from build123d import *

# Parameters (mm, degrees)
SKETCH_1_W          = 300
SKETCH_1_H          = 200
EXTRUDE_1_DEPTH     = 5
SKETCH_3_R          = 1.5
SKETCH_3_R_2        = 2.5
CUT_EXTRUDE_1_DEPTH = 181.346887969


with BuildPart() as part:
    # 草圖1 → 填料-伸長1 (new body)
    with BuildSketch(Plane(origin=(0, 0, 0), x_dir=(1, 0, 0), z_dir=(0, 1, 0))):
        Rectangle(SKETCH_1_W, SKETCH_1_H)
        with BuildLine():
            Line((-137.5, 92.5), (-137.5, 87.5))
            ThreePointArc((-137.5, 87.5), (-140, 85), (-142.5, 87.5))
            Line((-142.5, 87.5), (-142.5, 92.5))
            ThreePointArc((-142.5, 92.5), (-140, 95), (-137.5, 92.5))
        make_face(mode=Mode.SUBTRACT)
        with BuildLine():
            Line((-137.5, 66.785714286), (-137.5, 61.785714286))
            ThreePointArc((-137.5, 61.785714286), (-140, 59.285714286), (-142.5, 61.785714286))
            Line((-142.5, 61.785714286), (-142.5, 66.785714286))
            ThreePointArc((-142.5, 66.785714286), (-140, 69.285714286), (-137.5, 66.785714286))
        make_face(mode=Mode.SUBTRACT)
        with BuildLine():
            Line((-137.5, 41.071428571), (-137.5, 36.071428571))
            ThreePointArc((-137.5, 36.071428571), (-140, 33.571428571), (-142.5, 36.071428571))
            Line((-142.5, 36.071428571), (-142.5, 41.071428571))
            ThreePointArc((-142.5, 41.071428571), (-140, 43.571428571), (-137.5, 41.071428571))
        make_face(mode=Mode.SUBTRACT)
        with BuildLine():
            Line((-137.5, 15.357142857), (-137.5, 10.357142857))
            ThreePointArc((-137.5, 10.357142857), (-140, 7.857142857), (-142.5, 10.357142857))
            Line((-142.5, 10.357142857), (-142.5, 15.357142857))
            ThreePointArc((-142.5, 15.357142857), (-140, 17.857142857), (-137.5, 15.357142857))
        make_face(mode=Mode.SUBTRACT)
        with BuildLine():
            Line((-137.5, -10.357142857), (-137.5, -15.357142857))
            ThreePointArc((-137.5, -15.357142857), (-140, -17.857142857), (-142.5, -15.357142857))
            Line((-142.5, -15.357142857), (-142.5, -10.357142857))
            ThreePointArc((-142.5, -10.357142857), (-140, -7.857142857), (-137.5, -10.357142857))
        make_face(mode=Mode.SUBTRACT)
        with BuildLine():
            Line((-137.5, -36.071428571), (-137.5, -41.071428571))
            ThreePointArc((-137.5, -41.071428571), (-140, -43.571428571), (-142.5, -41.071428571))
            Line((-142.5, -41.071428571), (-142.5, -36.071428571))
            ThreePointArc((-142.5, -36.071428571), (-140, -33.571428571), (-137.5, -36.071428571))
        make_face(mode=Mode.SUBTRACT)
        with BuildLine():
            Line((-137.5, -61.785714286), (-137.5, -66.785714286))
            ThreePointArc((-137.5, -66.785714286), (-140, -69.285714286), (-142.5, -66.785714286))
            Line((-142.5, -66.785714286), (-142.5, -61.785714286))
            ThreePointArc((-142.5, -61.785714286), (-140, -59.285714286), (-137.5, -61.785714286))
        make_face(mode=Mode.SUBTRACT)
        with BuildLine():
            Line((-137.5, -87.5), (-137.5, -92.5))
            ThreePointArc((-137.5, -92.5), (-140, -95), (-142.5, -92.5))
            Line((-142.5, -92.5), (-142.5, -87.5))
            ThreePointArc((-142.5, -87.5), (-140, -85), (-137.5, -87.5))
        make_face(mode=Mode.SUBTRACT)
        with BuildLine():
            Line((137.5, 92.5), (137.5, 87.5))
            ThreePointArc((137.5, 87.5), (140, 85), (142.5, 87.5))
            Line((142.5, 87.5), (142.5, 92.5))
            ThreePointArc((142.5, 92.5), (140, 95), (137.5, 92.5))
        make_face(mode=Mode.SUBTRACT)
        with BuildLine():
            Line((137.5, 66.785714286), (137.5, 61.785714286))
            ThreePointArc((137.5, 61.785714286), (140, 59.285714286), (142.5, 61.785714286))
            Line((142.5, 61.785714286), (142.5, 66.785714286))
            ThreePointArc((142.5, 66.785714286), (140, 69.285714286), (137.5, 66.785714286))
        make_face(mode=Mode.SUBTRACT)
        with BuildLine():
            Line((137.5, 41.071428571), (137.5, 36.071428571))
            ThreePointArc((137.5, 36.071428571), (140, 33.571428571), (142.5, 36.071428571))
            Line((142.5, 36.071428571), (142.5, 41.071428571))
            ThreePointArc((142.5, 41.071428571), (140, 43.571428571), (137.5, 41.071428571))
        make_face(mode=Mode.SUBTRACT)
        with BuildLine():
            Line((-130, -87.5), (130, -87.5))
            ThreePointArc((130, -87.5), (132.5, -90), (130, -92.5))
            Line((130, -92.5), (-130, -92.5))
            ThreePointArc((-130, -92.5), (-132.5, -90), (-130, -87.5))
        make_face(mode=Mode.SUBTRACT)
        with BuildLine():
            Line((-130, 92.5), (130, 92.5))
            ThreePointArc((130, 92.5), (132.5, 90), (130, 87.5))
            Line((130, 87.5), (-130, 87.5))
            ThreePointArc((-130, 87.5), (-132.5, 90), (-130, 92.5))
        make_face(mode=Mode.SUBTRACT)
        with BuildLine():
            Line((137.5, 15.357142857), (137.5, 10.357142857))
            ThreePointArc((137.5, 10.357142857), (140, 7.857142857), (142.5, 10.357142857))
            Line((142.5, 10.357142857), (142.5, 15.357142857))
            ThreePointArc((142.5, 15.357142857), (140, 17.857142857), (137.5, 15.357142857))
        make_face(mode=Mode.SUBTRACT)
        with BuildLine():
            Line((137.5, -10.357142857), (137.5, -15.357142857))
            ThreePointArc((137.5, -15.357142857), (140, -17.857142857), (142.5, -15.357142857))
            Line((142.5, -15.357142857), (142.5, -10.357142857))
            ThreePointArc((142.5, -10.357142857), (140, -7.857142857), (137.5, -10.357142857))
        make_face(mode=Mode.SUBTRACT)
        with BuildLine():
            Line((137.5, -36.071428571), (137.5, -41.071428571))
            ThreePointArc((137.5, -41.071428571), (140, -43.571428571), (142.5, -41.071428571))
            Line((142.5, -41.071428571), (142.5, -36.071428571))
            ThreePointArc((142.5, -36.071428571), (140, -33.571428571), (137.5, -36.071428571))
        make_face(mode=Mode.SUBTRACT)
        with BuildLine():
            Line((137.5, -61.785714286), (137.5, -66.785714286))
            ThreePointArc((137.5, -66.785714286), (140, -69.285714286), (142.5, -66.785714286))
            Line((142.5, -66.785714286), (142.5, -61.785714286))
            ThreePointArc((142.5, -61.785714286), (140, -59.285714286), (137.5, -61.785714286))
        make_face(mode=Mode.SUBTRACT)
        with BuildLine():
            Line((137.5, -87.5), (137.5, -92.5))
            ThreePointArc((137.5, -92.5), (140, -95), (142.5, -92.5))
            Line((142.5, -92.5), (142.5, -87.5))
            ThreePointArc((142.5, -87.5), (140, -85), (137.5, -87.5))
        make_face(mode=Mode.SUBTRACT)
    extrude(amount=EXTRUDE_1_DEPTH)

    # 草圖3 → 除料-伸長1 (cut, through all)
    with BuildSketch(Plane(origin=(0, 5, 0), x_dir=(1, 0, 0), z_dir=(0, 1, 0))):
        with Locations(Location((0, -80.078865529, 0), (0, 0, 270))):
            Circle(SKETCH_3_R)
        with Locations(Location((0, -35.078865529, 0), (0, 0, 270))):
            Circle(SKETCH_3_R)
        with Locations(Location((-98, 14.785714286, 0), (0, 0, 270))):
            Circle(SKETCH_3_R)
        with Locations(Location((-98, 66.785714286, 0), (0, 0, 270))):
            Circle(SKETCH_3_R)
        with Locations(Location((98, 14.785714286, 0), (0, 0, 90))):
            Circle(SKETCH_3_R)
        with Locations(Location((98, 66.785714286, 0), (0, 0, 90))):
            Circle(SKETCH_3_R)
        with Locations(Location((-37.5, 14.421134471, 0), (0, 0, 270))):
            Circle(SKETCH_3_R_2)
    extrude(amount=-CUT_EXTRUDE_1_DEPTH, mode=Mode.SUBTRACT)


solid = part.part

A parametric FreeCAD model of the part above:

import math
import FreeCAD as App
import Part
import Sketcher
Q = App.Units.Quantity

doc = App.newDocument("Part")
body = doc.addObject("PartDesign::Body", "Body")

sketch1 = body.newObject("Sketcher::SketchObject", "Sketch")
sketch1.AttachmentSupport = (doc.getObject("XZ_Plane"), [""])
sketch1.MapMode = "FlatFace"
sketch1.addGeometry([
    Part.LineSegment(App.Vector(-150, -100, 0), App.Vector(-150, 100, 0)),
    Part.LineSegment(App.Vector(-150, 100, 0), App.Vector(150, 100, 0)),
    Part.LineSegment(App.Vector(150, 100, 0), App.Vector(150, -100, 0)),
    Part.LineSegment(App.Vector(150, -100, 0), App.Vector(-150, -100, 0)),
    Part.ArcOfCircle(Part.Circle(App.Vector(-140, 87.5, 0), App.Vector(0, 0, 1), 2.5), math.radians(180), math.radians(360)),
    Part.LineSegment(App.Vector(-137.5, 87.5, 0), App.Vector(-137.5, 92.5, 0)),
    Part.ArcOfCircle(Part.Circle(App.Vector(-140, 92.5, 0), App.Vector(0, 0, 1), 2.5), math.radians(0), math.radians(180)),
    Part.LineSegment(App.Vector(-142.5, 92.5, 0), App.Vector(-142.5, 87.5, 0)),
    Part.ArcOfCircle(Part.Circle(App.Vector(-140, 61.785714, 0), App.Vector(0, 0, 1), 2.5), math.radians(180), math.radians(360)),
    Part.LineSegment(App.Vector(-137.5, 61.785714, 0), App.Vector(-137.5, 66.785714, 0)),
    Part.ArcOfCircle(Part.Circle(App.Vector(-140, 66.785714, 0), App.Vector(0, 0, 1), 2.5), math.radians(0), math.radians(180)),
    Part.LineSegment(App.Vector(-142.5, 66.785714, 0), App.Vector(-142.5, 61.785714, 0)),
    Part.ArcOfCircle(Part.Circle(App.Vector(-140, 36.071429, 0), App.Vector(0, 0, 1), 2.5), math.radians(180), math.radians(360)),
    Part.LineSegment(App.Vector(-137.5, 36.071429, 0), App.Vector(-137.5, 41.071429, 0)),
    Part.ArcOfCircle(Part.Circle(App.Vector(-140, 41.071429, 0), App.Vector(0, 0, 1), 2.5), math.radians(0), math.radians(180)),
    Part.LineSegment(App.Vector(-142.5, 41.071429, 0), App.Vector(-142.5, 36.071429, 0)),
    Part.ArcOfCircle(Part.Circle(App.Vector(-140, 10.357143, 0), App.Vector(0, 0, 1), 2.5), math.radians(180), math.radians(360)),
    Part.LineSegment(App.Vector(-137.5, 10.357143, 0), App.Vector(-137.5, 15.357143, 0)),
    Part.ArcOfCircle(Part.Circle(App.Vector(-140, 15.357143, 0), App.Vector(0, 0, 1), 2.5), math.radians(0), math.radians(180)),
    Part.LineSegment(App.Vector(-142.5, 15.357143, 0), App.Vector(-142.5, 10.357143, 0)),
    Part.ArcOfCircle(Part.Circle(App.Vector(-130, 90, 0), App.Vector(0, 0, 1), 2.5), math.radians(90), math.radians(270)),
    Part.LineSegment(App.Vector(-130, 87.5, 0), App.Vector(130, 87.5, 0)),
    Part.ArcOfCircle(Part.Circle(App.Vector(130, 90, 0), App.Vector(0, 0, 1), 2.5), math.radians(-90), math.radians(90)),
    Part.LineSegment(App.Vector(130, 92.5, 0), App.Vector(-130, 92.5, 0)),
    Part.LineSegment(App.Vector(137.5, 92.5, 0), App.Vector(137.5, 87.5, 0)),
    Part.ArcOfCircle(Part.Circle(App.Vector(140, 87.5, 0), App.Vector(0, 0, 1), 2.5), math.radians(180), math.radians(360)),
    Part.LineSegment(App.Vector(142.5, 87.5, 0), App.Vector(142.5, 92.5, 0)),
    Part.ArcOfCircle(Part.Circle(App.Vector(140, 92.5, 0), App.Vector(0, 0, 1), 2.5), math.radians(0), math.radians(180)),
    Part.LineSegment(App.Vector(137.5, 66.785714, 0), App.Vector(137.5, 61.785714, 0)),
    Part.ArcOfCircle(Part.Circle(App.Vector(140, 61.785714, 0), App.Vector(0, 0, 1), 2.5), math.radians(180), math.radians(360)),
    Part.LineSegment(App.Vector(142.5, 61.785714, 0), App.Vector(142.5, 66.785714, 0)),
    Part.ArcOfCircle(Part.Circle(App.Vector(140, 66.785714, 0), App.Vector(0, 0, 1), 2.5), math.radians(0), math.radians(180)),
    Part.LineSegment(App.Vector(137.5, 41.071429, 0), App.Vector(137.5, 36.071429, 0)),
    Part.ArcOfCircle(Part.Circle(App.Vector(140, 36.071429, 0), App.Vector(0, 0, 1), 2.5), math.radians(180), math.radians(360)),
    Part.LineSegment(App.Vector(142.5, 36.071429, 0), App.Vector(142.5, 41.071429, 0)),
    Part.ArcOfCircle(Part.Circle(App.Vector(140, 41.071429, 0), App.Vector(0, 0, 1), 2.5), math.radians(0), math.radians(180)),
    Part.LineSegment(App.Vector(137.5, 15.357143, 0), App.Vector(137.5, 10.357143, 0)),
    Part.ArcOfCircle(Part.Circle(App.Vector(140, 10.357143, 0), App.Vector(0, 0, 1), 2.5), math.radians(180), math.radians(360)),
    Part.LineSegment(App.Vector(142.5, 10.357143, 0), App.Vector(142.5, 15.357143, 0)),
    Part.ArcOfCircle(Part.Circle(App.Vector(140, 15.357143, 0), App.Vector(0, 0, 1), 2.5), math.radians(0), math.radians(180)),
    Part.ArcOfCircle(Part.Circle(App.Vector(-140, -15.357143, 0), App.Vector(0, 0, 1), 2.5), math.radians(180), math.radians(360)),
    Part.LineSegment(App.Vector(-137.5, -15.357143, 0), App.Vector(-137.5, -10.357143, 0)),
    Part.ArcOfCircle(Part.Circle(App.Vector(-140, -10.357143, 0), App.Vector(0, 0, 1), 2.5), math.radians(0), math.radians(180)),
    Part.LineSegment(App.Vector(-142.5, -10.357143, 0), App.Vector(-142.5, -15.357143, 0)),
    Part.ArcOfCircle(Part.Circle(App.Vector(-140, -41.071429, 0), App.Vector(0, 0, 1), 2.5), math.radians(180), math.radians(360)),
    Part.LineSegment(App.Vector(-137.5, -41.071429, 0), App.Vector(-137.5, -36.071429, 0)),
    Part.ArcOfCircle(Part.Circle(App.Vector(-140, -36.071429, 0), App.Vector(0, 0, 1), 2.5), math.radians(0), math.radians(180)),
    Part.LineSegment(App.Vector(-142.5, -36.071429, 0), App.Vector(-142.5, -41.071429, 0)),
    Part.ArcOfCircle(Part.Circle(App.Vector(-140, -66.785714, 0), App.Vector(0, 0, 1), 2.5), math.radians(180), math.radians(360)),
    Part.LineSegment(App.Vector(-137.5, -66.785714, 0), App.Vector(-137.5, -61.785714, 0)),
    Part.ArcOfCircle(Part.Circle(App.Vector(-140, -61.785714, 0), App.Vector(0, 0, 1), 2.5), math.radians(0), math.radians(180)),
    Part.LineSegment(App.Vector(-142.5, -61.785714, 0), App.Vector(-142.5, -66.785714, 0)),
    Part.ArcOfCircle(Part.Circle(App.Vector(-140, -92.5, 0), App.Vector(0, 0, 1), 2.5), math.radians(180), math.radians(360)),
    Part.LineSegment(App.Vector(-137.5, -92.5, 0), App.Vector(-137.5, -87.5, 0)),
    Part.ArcOfCircle(Part.Circle(App.Vector(-140, -87.5, 0), App.Vector(0, 0, 1), 2.5), math.radians(0), math.radians(180)),
    Part.LineSegment(App.Vector(-142.5, -87.5, 0), App.Vector(-142.5, -92.5, 0)),
    Part.LineSegment(App.Vector(137.5, -10.357143, 0), App.Vector(137.5, -15.357143, 0)),
    Part.ArcOfCircle(Part.Circle(App.Vector(140, -15.357143, 0), App.Vector(0, 0, 1), 2.5), math.radians(180), math.radians(360)),
    Part.LineSegment(App.Vector(142.5, -15.357143, 0), App.Vector(142.5, -10.357143, 0)),
    Part.ArcOfCircle(Part.Circle(App.Vector(140, -10.357143, 0), App.Vector(0, 0, 1), 2.5), math.radians(0), math.radians(180)),
    Part.LineSegment(App.Vector(137.5, -36.071429, 0), App.Vector(137.5, -41.071429, 0)),
    Part.ArcOfCircle(Part.Circle(App.Vector(140, -41.071429, 0), App.Vector(0, 0, 1), 2.5), math.radians(180), math.radians(360)),
    Part.LineSegment(App.Vector(142.5, -41.071429, 0), App.Vector(142.5, -36.071429, 0)),
    Part.ArcOfCircle(Part.Circle(App.Vector(140, -36.071429, 0), App.Vector(0, 0, 1), 2.5), math.radians(0), math.radians(180)),
    Part.ArcOfCircle(Part.Circle(App.Vector(-130, -90, 0), App.Vector(0, 0, 1), 2.5), math.radians(90), math.radians(270)),
    Part.LineSegment(App.Vector(-130, -92.5, 0), App.Vector(130, -92.5, 0)),
    Part.ArcOfCircle(Part.Circle(App.Vector(130, -90, 0), App.Vector(0, 0, 1), 2.5), math.radians(-90), math.radians(90)),
    Part.LineSegment(App.Vector(130, -87.5, 0), App.Vector(-130, -87.5, 0)),
    Part.LineSegment(App.Vector(137.5, -61.785714, 0), App.Vector(137.5, -66.785714, 0)),
    Part.ArcOfCircle(Part.Circle(App.Vector(140, -66.785714, 0), App.Vector(0, 0, 1), 2.5), math.radians(180), math.radians(360)),
    Part.LineSegment(App.Vector(142.5, -66.785714, 0), App.Vector(142.5, -61.785714, 0)),
    Part.ArcOfCircle(Part.Circle(App.Vector(140, -61.785714, 0), App.Vector(0, 0, 1), 2.5), math.radians(0), math.radians(180)),
    Part.LineSegment(App.Vector(137.5, -87.5, 0), App.Vector(137.5, -92.5, 0)),
    Part.ArcOfCircle(Part.Circle(App.Vector(140, -92.5, 0), App.Vector(0, 0, 1), 2.5), math.radians(180), math.radians(360)),
    Part.LineSegment(App.Vector(142.5, -92.5, 0), App.Vector(142.5, -87.5, 0)),
    Part.ArcOfCircle(Part.Circle(App.Vector(140, -87.5, 0), App.Vector(0, 0, 1), 2.5), math.radians(0), math.radians(180)),
], False)
sketch1.addConstraint([
    Sketcher.Constraint("Coincident", 0, 2, 1, 1),
    Sketcher.Constraint("Coincident", 1, 2, 2, 1),
    Sketcher.Constraint("Coincident", 2, 2, 3, 1),
    Sketcher.Constraint("Coincident", 3, 2, 0, 1),
    Sketcher.Constraint("Tangent", 4, 2, 5, 1),
    Sketcher.Constraint("Tangent", 5, 2, 6, 1),
    Sketcher.Constraint("Tangent", 6, 2, 7, 1),
    Sketcher.Constraint("Tangent", 7, 2, 4, 1),
    Sketcher.Constraint("Tangent", 8, 2, 9, 1),
    Sketcher.Constraint("Tangent", 9, 2, 10, 1),
    Sketcher.Constraint("Tangent", 10, 2, 11, 1),
    Sketcher.Constraint("Tangent", 11, 2, 8, 1),
    Sketcher.Constraint("Tangent", 12, 2, 13, 1),
    Sketcher.Constraint("Tangent", 13, 2, 14, 1),
    Sketcher.Constraint("Tangent", 14, 2, 15, 1),
    Sketcher.Constraint("Tangent", 15, 2, 12, 1),
    Sketcher.Constraint("Tangent", 16, 2, 17, 1),
    Sketcher.Constraint("Tangent", 17, 2, 18, 1),
    Sketcher.Constraint("Tangent", 18, 2, 19, 1),
    Sketcher.Constraint("Tangent", 19, 2, 16, 1),
    Sketcher.Constraint("Tangent", 20, 2, 21, 1),
    Sketcher.Constraint("Tangent", 21, 2, 22, 1),
    Sketcher.Constraint("Tangent", 22, 2, 23, 1),
    Sketcher.Constraint("Tangent", 23, 2, 20, 1),
    Sketcher.Constraint("Tangent", 24, 2, 25, 1),
    Sketcher.Constraint("Tangent", 25, 2, 26, 1),
    Sketcher.Constraint("Tangent", 26, 2, 27, 1),
    Sketcher.Constraint("Tangent", 27, 2, 24, 1),
    Sketcher.Constraint("Tangent", 28, 2, 29, 1),
    Sketcher.Constraint("Tangent", 29, 2, 30, 1),
    Sketcher.Constraint("Tangent", 30, 2, 31, 1),
    Sketcher.Constraint("Tangent", 31, 2, 28, 1),
    Sketcher.Constraint("Tangent", 32, 2, 33, 1),
    Sketcher.Constraint("Tangent", 33, 2, 34, 1),
    Sketcher.Constraint("Tangent", 34, 2, 35, 1),
    Sketcher.Constraint("Tangent", 35, 2, 32, 1),
    Sketcher.Constraint("Tangent", 36, 2, 37, 1),
    Sketcher.Constraint("Tangent", 37, 2, 38, 1),
    Sketcher.Constraint("Tangent", 38, 2, 39, 1),
    Sketcher.Constraint("Tangent", 39, 2, 36, 1),
    Sketcher.Constraint("Tangent", 40, 2, 41, 1),
    Sketcher.Constraint("Tangent", 41, 2, 42, 1),
    Sketcher.Constraint("Tangent", 42, 2, 43, 1),
    Sketcher.Constraint("Tangent", 43, 2, 40, 1),
    Sketcher.Constraint("Tangent", 44, 2, 45, 1),
    Sketcher.Constraint("Tangent", 45, 2, 46, 1),
    Sketcher.Constraint("Tangent", 46, 2, 47, 1),
    Sketcher.Constraint("Tangent", 47, 2, 44, 1),
    Sketcher.Constraint("Tangent", 48, 2, 49, 1),
    Sketcher.Constraint("Tangent", 49, 2, 50, 1),
    Sketcher.Constraint("Tangent", 50, 2, 51, 1),
    Sketcher.Constraint("Tangent", 51, 2, 48, 1),
    Sketcher.Constraint("Tangent", 52, 2, 53, 1),
    Sketcher.Constraint("Tangent", 53, 2, 54, 1),
    Sketcher.Constraint("Tangent", 54, 2, 55, 1),
    Sketcher.Constraint("Tangent", 55, 2, 52, 1),
    Sketcher.Constraint("Tangent", 56, 2, 57, 1),
    Sketcher.Constraint("Tangent", 57, 2, 58, 1),
    Sketcher.Constraint("Tangent", 58, 2, 59, 1),
    Sketcher.Constraint("Tangent", 59, 2, 56, 1),
    Sketcher.Constraint("Tangent", 60, 2, 61, 1),
    Sketcher.Constraint("Tangent", 61, 2, 62, 1),
    Sketcher.Constraint("Tangent", 62, 2, 63, 1),
    Sketcher.Constraint("Tangent", 63, 2, 60, 1),
    Sketcher.Constraint("Tangent", 64, 2, 65, 1),
    Sketcher.Constraint("Tangent", 65, 2, 66, 1),
    Sketcher.Constraint("Tangent", 66, 2, 67, 1),
    Sketcher.Constraint("Tangent", 67, 2, 64, 1),
    Sketcher.Constraint("Tangent", 68, 2, 69, 1),
    Sketcher.Constraint("Tangent", 69, 2, 70, 1),
    Sketcher.Constraint("Tangent", 70, 2, 71, 1),
    Sketcher.Constraint("Tangent", 71, 2, 68, 1),
    Sketcher.Constraint("Tangent", 72, 2, 73, 1),
    Sketcher.Constraint("Tangent", 73, 2, 74, 1),
    Sketcher.Constraint("Tangent", 74, 2, 75, 1),
    Sketcher.Constraint("Tangent", 75, 2, 72, 1),
    Sketcher.Constraint("Vertical", 0),
    Sketcher.Constraint("Horizontal", 1),
    Sketcher.Constraint("Vertical", 2),
    Sketcher.Constraint("Horizontal", 3),
    Sketcher.Constraint("Vertical", 5),
    Sketcher.Constraint("Vertical", 7),
    Sketcher.Constraint("Vertical", 9),
    Sketcher.Constraint("Vertical", 11),
    Sketcher.Constraint("Vertical", 13),
    Sketcher.Constraint("Vertical", 15),
    Sketcher.Constraint("Vertical", 17),
    Sketcher.Constraint("Vertical", 19),
    Sketcher.Constraint("Horizontal", 21),
    Sketcher.Constraint("Horizontal", 23),
    Sketcher.Constraint("Vertical", 24),
    Sketcher.Constraint("Vertical", 26),
    Sketcher.Constraint("Vertical", 28),
    Sketcher.Constraint("Vertical", 30),
    Sketcher.Constraint("Vertical", 32),
    Sketcher.Constraint("Vertical", 34),
    Sketcher.Constraint("Vertical", 36),
    Sketcher.Constraint("Vertical", 38),
    Sketcher.Constraint("Vertical", 41),
    Sketcher.Constraint("Vertical", 43),
    Sketcher.Constraint("Vertical", 45),
    Sketcher.Constraint("Vertical", 47),
    Sketcher.Constraint("Vertical", 49),
    Sketcher.Constraint("Vertical", 51),
    Sketcher.Constraint("Vertical", 53),
    Sketcher.Constraint("Vertical", 55),
    Sketcher.Constraint("Vertical", 56),
    Sketcher.Constraint("Vertical", 58),
    Sketcher.Constraint("Vertical", 60),
    Sketcher.Constraint("Vertical", 62),
    Sketcher.Constraint("Horizontal", 65),
    Sketcher.Constraint("Horizontal", 67),
    Sketcher.Constraint("Vertical", 68),
    Sketcher.Constraint("Vertical", 70),
    Sketcher.Constraint("Vertical", 72),
    Sketcher.Constraint("Vertical", 74),
    Sketcher.Constraint("Equal", 6, 8),
    Sketcher.Constraint("Equal", 10, 12),
    Sketcher.Constraint("Equal", 14, 16),
    Sketcher.Constraint("Equal", 18, 20),
    Sketcher.Constraint("Equal", 22, 25),
    Sketcher.Constraint("Equal", 27, 29),
    Sketcher.Constraint("Equal", 31, 33),
    Sketcher.Constraint("Equal", 35, 37),
    Sketcher.Constraint("Equal", 39, 40),
    Sketcher.Constraint("Equal", 42, 44),
    Sketcher.Constraint("Equal", 46, 48),
    Sketcher.Constraint("Equal", 50, 52),
    Sketcher.Constraint("Equal", 54, 57),
    Sketcher.Constraint("Equal", 59, 61),
    Sketcher.Constraint("Equal", 63, 64),
    Sketcher.Constraint("Equal", 66, 69),
    Sketcher.Constraint("Equal", 71, 73),
    Sketcher.Constraint("Symmetric", 39, 3, 40, 3, -1, 1),
    Sketcher.Constraint("Symmetric", 35, 3, 44, 3, -1, 1),
    Sketcher.Constraint("Symmetric", 31, 3, 48, 3, -1, 1),
    Sketcher.Constraint("Symmetric", 27, 3, 52, 3, -1, 1),
    Sketcher.Constraint("Symmetric", 18, 3, 57, 3, -1, 1),
    Sketcher.Constraint("Symmetric", 14, 3, 61, 3, -1, 1),
    Sketcher.Constraint("Symmetric", 22, 3, 64, 3, -1, 1),
    Sketcher.Constraint("Symmetric", 10, 3, 69, 3, -1, 1),
    Sketcher.Constraint("Symmetric", 6, 3, 73, 3, -1, 1),
    Sketcher.Constraint("Symmetric", 0, 2, 2, 2, -1, 1),
    Sketcher.Constraint("Symmetric", 4, 3, 25, 3, -2),
    Sketcher.Constraint("Symmetric", 8, 3, 29, 3, -2),
    Sketcher.Constraint("Symmetric", 12, 3, 33, 3, -2),
    Sketcher.Constraint("Symmetric", 16, 3, 37, 3, -2),
    Sketcher.Constraint("Horizontal", 6, 3, 27, 3),
    Sketcher.Constraint("Horizontal", 10, 3, 31, 3),
    Sketcher.Constraint("Horizontal", 14, 3, 35, 3),
    Sketcher.Constraint("Horizontal", 18, 3, 39, 3),
    Sketcher.Constraint("Horizontal", 42, 3, 59, 3),
    Sketcher.Constraint("Horizontal", 46, 3, 63, 3),
    Sketcher.Constraint("Horizontal", 50, 3, 71, 3),
    Sketcher.Constraint("Horizontal", 54, 3, 75, 3),
    Sketcher.Constraint("Horizontal", 7, 2, 20, 2),
    Sketcher.Constraint("Horizontal", 6, 2, 22, 2),
    Sketcher.Constraint("Horizontal", 54, 2, 66, 2),
    Sketcher.Constraint("Vertical", 6, 3, 8, 3),
    Sketcher.Constraint("Vertical", 10, 3, 12, 3),
    Sketcher.Constraint("Vertical", 14, 3, 16, 3),
    Sketcher.Constraint("Vertical", 20, 3, 64, 3),
    Sketcher.Constraint("Vertical", 22, 3, 66, 3),
    Sketcher.Constraint("Equal", 7, 9),
    Sketcher.Constraint("Equal", 11, 13),
    Sketcher.Constraint("Equal", 15, 17),
    Sketcher.Constraint("Equal", 38, 41),
    Sketcher.Constraint("Equal", 43, 45),
    Sketcher.Constraint("Equal", 47, 49),
    Sketcher.Constraint("Radius", 4, Q("2.5 mm")),
    Sketcher.Constraint("DistanceX", 1, 1, 1, 2, Q("300 mm")),
    Sketcher.Constraint("DistanceX", 21, 1, 21, 2, Q("260 mm")),
    Sketcher.Constraint("DistanceY", 0, 1, 0, 2, Q("200 mm")),
    Sketcher.Constraint("DistanceX", 4, 3, -1, 1, Q("140 mm")),
    Sketcher.Constraint("DistanceY", -1, 1, 20, 3, Q("90 mm")),
    Sketcher.Constraint("DistanceY", -1, 1, 12, 3, Q("36.071429 mm")),
    Sketcher.Constraint("DistanceY", -1, 1, 8, 3, Q("61.785714 mm")),
    Sketcher.Constraint("DistanceY", -1, 1, 16, 3, Q("10.357143 mm")),
])
pad1 = body.newObject("PartDesign::Pad", "Pad")
pad1.Profile = sketch1
pad1.Length = 5
pad1.Reversed = True

sketch2 = body.newObject("Sketcher::SketchObject", "Sketch001")
sketch2.AttachmentSupport = (doc.getObject("XZ_Plane"), [""])
sketch2.MapMode = "FlatFace"
sketch2.AttachmentOffset = App.Placement(App.Vector(0, 0, -5), App.Rotation())
sketch2.addGeometry([
    Part.Circle(App.Vector(0, 80.078866, 0), App.Vector(0, 0, 1), 1.5),
    Part.Circle(App.Vector(0, 35.078866, 0), App.Vector(0, 0, 1), 1.5),
    Part.Circle(App.Vector(-98, -14.785714, 0), App.Vector(0, 0, 1), 1.5),
    Part.Circle(App.Vector(-98, -66.785714, 0), App.Vector(0, 0, 1), 1.5),
    Part.Circle(App.Vector(98, -14.785714, 0), App.Vector(0, 0, 1), 1.5),
    Part.Circle(App.Vector(98, -66.785714, 0), App.Vector(0, 0, 1), 1.5),
    Part.Circle(App.Vector(-37.5, -14.421134, 0), App.Vector(0, 0, 1), 2.5),
], False)
sketch2.addConstraint([
    Sketcher.Constraint("Equal", 0, 1),
    Sketcher.Constraint("Equal", 1, 2),
    Sketcher.Constraint("Equal", 2, 3),
    Sketcher.Constraint("Equal", 3, 4),
    Sketcher.Constraint("Equal", 4, 5),
    Sketcher.Constraint("Symmetric", 2, 3, 4, 3, -2),
    Sketcher.Constraint("Symmetric", 3, 3, 5, 3, -2),
    Sketcher.Constraint("PointOnObject", 0, 3, -2),
    Sketcher.Constraint("PointOnObject", 1, 3, -2),
    Sketcher.Constraint("Vertical", 2, 3, 3, 3),
    Sketcher.Constraint("Diameter", 0, Q("3 mm")),
    Sketcher.Constraint("Diameter", 6, Q("5 mm")),
    Sketcher.Constraint("DistanceX", 2, 3, -1, 1, Q("98 mm")),
    Sketcher.Constraint("DistanceY", 1, 3, 0, 3, Q("45 mm")),
    Sketcher.Constraint("DistanceY", 3, 3, 2, 3, Q("52 mm")),
    Sketcher.Constraint("DistanceX", 6, 3, -1, 1, Q("37.5 mm")),
    Sketcher.Constraint("DistanceY", 6, 3, 1, 3, Q("49.5 mm")),
    Sketcher.Constraint("DistanceY", 2, 3, 1, 3, Q("49.86458 mm")),
    Sketcher.Constraint("DistanceY", -1, 1, 0, 3, Q("80.078866 mm")),
])
pocket1 = body.newObject("PartDesign::Pocket", "Pocket")
pocket1.Profile = sketch2
pocket1.Type = "ThroughAll"
pocket1.Reversed = True

doc.recompute()
